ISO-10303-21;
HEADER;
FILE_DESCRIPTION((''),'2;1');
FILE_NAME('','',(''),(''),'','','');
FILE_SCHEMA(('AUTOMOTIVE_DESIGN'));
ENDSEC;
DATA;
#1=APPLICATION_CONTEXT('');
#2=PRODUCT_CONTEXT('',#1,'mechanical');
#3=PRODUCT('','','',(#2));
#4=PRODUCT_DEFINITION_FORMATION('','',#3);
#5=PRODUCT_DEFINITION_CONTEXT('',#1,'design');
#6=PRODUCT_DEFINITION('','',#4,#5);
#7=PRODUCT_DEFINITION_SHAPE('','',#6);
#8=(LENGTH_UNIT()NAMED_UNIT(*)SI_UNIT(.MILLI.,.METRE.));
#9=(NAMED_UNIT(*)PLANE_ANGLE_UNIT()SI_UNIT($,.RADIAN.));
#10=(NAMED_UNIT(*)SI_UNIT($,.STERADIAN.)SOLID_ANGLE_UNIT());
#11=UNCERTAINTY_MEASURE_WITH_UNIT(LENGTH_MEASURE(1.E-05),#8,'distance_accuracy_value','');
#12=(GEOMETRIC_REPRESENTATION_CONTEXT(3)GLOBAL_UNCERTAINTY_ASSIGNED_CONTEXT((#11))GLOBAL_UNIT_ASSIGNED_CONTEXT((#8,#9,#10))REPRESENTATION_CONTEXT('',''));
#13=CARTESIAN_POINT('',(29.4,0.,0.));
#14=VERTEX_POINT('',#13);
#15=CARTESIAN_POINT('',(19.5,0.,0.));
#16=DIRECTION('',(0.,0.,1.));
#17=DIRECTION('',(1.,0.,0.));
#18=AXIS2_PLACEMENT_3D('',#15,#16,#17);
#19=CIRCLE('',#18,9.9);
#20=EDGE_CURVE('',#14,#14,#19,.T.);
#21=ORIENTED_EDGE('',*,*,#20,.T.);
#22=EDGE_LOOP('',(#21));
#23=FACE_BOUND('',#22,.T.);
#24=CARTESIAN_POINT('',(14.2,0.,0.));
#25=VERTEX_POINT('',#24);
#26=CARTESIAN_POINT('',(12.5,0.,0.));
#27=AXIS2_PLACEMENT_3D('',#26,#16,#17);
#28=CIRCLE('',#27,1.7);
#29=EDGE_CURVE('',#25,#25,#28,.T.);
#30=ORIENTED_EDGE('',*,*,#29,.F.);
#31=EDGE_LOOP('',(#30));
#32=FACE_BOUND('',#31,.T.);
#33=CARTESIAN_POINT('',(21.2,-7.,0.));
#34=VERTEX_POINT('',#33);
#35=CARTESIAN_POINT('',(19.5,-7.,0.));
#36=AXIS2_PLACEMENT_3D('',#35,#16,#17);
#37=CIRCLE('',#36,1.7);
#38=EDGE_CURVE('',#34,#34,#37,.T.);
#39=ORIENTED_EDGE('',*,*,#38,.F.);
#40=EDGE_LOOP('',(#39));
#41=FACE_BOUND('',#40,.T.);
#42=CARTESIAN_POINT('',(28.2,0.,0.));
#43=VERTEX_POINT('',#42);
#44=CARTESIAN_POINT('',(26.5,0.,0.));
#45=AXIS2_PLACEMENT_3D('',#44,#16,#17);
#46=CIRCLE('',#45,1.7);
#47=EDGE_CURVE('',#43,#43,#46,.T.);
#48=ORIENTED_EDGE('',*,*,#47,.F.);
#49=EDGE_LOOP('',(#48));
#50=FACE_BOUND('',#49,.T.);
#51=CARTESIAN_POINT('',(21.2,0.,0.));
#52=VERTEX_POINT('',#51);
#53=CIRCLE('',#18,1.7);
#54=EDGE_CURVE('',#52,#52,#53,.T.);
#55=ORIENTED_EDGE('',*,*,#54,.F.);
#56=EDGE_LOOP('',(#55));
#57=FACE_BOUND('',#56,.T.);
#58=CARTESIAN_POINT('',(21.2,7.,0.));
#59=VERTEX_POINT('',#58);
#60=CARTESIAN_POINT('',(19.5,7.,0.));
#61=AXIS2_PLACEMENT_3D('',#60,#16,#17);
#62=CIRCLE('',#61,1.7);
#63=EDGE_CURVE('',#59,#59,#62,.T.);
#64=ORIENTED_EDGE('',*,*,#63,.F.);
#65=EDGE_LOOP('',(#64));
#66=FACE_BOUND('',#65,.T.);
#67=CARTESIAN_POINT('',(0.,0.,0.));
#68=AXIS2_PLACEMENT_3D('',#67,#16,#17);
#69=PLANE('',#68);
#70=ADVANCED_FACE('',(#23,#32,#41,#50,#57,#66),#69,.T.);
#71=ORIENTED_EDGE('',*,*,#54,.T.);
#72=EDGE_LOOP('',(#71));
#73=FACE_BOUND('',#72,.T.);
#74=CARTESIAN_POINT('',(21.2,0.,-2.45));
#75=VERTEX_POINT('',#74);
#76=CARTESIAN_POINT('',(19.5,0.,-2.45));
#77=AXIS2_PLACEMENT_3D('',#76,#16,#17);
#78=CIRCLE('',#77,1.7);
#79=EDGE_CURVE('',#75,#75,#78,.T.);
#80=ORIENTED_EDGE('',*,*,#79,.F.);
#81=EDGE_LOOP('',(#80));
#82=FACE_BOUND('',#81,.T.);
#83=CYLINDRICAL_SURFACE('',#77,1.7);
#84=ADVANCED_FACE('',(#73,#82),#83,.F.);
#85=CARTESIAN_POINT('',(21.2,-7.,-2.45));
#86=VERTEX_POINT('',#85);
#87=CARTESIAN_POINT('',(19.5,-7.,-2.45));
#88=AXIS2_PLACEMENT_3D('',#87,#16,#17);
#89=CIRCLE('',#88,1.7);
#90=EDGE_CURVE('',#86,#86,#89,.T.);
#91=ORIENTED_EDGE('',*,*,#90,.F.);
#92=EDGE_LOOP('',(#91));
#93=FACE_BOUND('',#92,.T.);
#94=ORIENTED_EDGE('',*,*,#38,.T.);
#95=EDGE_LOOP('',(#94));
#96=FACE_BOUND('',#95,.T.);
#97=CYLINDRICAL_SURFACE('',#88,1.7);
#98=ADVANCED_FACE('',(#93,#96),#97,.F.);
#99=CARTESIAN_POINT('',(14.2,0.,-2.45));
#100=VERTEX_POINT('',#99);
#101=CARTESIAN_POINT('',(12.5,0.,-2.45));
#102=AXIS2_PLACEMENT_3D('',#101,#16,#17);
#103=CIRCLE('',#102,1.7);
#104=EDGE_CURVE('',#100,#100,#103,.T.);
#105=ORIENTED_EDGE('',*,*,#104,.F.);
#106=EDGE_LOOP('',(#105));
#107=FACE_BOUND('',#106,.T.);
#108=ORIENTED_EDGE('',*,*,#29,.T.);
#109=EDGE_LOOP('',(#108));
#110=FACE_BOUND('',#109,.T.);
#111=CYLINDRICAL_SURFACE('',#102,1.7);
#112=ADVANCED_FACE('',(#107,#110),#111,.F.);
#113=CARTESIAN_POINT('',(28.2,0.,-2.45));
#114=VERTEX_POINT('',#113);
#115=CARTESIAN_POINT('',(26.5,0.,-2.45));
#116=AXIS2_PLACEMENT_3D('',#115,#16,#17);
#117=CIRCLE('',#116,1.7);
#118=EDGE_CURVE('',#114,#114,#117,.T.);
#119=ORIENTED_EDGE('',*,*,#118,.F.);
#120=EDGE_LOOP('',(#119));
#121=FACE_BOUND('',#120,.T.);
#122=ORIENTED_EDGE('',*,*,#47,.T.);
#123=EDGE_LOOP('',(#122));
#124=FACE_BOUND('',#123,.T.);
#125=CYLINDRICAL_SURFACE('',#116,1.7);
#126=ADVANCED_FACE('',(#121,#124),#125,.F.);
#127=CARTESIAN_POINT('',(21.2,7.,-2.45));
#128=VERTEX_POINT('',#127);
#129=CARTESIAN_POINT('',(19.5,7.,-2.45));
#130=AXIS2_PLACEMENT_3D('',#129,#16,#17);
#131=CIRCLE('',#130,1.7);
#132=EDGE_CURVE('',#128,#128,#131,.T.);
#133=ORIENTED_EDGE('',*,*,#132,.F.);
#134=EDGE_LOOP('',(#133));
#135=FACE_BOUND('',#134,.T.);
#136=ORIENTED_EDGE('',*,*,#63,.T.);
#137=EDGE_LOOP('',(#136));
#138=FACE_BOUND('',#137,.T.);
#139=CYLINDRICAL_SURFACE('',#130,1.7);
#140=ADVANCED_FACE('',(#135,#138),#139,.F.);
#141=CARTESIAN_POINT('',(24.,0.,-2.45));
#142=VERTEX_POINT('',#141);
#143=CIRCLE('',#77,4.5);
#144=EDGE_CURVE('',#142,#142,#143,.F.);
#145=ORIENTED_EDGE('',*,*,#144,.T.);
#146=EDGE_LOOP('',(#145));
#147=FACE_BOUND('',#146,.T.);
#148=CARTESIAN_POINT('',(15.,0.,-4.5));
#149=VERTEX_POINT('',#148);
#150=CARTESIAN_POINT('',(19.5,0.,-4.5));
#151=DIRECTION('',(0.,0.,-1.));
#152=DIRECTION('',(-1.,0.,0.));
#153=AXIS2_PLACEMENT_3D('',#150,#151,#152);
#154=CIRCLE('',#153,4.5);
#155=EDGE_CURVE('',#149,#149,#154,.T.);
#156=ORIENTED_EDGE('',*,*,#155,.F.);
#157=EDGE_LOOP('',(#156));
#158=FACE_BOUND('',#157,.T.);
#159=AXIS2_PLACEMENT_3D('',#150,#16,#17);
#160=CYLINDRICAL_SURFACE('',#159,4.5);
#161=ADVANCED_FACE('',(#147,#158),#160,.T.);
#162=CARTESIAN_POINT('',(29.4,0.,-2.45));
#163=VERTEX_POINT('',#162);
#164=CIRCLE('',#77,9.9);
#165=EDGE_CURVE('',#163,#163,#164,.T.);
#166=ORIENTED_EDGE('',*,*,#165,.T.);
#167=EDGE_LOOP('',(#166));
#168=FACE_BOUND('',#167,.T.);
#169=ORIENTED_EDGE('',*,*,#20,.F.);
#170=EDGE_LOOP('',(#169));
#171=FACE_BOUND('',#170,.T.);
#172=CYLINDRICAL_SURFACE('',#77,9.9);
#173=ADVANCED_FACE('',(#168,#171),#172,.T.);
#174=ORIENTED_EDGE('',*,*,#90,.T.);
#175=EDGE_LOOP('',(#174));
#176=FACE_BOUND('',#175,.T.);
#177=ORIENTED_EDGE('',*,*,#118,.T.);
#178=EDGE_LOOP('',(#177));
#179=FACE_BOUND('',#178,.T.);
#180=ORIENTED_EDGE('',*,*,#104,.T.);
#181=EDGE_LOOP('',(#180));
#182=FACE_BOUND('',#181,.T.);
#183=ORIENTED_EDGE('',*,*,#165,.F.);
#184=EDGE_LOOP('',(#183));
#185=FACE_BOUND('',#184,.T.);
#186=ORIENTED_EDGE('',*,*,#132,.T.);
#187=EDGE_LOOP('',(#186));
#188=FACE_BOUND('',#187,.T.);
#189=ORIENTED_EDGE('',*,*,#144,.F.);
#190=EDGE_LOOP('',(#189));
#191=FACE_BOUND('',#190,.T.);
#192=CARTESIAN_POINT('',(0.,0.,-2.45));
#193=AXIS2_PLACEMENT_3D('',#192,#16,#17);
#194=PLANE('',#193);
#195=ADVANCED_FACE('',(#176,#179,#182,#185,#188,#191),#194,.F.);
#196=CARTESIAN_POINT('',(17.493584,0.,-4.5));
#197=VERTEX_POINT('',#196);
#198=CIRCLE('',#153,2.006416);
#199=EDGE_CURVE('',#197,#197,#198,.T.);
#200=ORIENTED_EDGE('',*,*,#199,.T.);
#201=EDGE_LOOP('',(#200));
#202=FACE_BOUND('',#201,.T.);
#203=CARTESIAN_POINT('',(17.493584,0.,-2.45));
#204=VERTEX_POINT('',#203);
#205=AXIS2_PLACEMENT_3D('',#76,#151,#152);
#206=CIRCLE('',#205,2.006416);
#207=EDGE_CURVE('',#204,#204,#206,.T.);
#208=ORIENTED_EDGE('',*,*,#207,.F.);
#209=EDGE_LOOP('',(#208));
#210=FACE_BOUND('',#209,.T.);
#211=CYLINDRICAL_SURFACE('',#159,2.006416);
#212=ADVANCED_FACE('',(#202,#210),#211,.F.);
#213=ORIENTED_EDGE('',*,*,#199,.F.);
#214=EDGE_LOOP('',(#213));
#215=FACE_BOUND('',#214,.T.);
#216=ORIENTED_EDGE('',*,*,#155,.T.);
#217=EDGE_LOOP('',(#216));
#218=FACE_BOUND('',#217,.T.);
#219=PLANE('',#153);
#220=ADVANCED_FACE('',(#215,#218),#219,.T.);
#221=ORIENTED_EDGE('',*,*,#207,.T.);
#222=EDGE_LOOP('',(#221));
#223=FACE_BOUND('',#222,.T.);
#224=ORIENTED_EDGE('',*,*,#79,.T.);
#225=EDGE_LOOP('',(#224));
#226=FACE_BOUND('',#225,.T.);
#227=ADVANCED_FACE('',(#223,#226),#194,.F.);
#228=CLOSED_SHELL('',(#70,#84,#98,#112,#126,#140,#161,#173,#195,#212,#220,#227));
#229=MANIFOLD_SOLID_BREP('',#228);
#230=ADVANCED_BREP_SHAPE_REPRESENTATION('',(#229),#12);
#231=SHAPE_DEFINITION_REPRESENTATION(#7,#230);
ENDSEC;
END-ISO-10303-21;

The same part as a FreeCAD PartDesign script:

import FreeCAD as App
import Part
import Sketcher
from FreeCAD import Vector
Q = App.Units.Quantity

doc = App.newDocument("Part")
body = doc.addObject("PartDesign::Body", "Body")

sketch1 = body.newObject("Sketcher::SketchObject", "Sketch")
sketch1.AttachmentSupport = (doc.getObject("XY_Plane"), [""])
sketch1.MapMode = "FlatFace"
sketch1.addGeometry(Part.Circle(Vector(19.5, 0, 0), Vector(0, 0, 1), 9.9), False)
sketch1.addGeometry(Part.Circle(Vector(19.5, -7, 0), Vector(0, 0, 1), 1.7), False)
sketch1.addGeometry(Part.Circle(Vector(12.5, 0, 0), Vector(0, 0, 1), 1.7), False)
sketch1.addGeometry(Part.Circle(Vector(19.5, 0, 0), Vector(0, 0, 1), 1.7), False)
sketch1.addGeometry(Part.Circle(Vector(26.5, 0, 0), Vector(0, 0, 1), 1.7), False)
sketch1.addGeometry(Part.Circle(Vector(19.5, 7, 0), Vector(0, 0, 1), 1.7), False)
sketch1.addConstraint(Sketcher.Constraint("Coincident", 3, 3, 0, 3))
sketch1.addConstraint(Sketcher.Constraint("Equal", 1, 2))
sketch1.addConstraint(Sketcher.Constraint("Equal", 2, 3))
sketch1.addConstraint(Sketcher.Constraint("Equal", 3, 4))
sketch1.addConstraint(Sketcher.Constraint("Equal", 4, 5))
sketch1.addConstraint(Sketcher.Constraint("Symmetric", 1, 3, 5, 3, -1))
sketch1.addConstraint(Sketcher.Constraint("PointOnObject", 0, 3, -1))
sketch1.addConstraint(Sketcher.Constraint("PointOnObject", 2, 3, -1))
sketch1.addConstraint(Sketcher.Constraint("PointOnObject", 4, 3, -1))
sketch1.addConstraint(Sketcher.Constraint("Vertical", 0, 3, 1, 3))
sketch1.addConstraint(Sketcher.Constraint("Diameter", 0, Q("19.8 mm")))
sketch1.addConstraint(Sketcher.Constraint("Diameter", 1, Q("3.4 mm")))
sketch1.addConstraint(Sketcher.Constraint("DistanceY", 1, 3, -1, 1, Q("7 mm")))
sketch1.addConstraint(Sketcher.Constraint("DistanceX", 2, 3, 0, 3, Q("7 mm")))
sketch1.addConstraint(Sketcher.Constraint("DistanceX", 0, 3, 4, 3, Q("7 mm")))
sketch1.addConstraint(Sketcher.Constraint("DistanceX", -1, 1, 0, 3, Q("19.5 mm")))
pad1 = body.newObject("PartDesign::Pad", "Pad")
pad1.Profile = sketch1
pad1.Length = 2.45
pad1.Reversed = True

sketch2 = body.newObject("Sketcher::SketchObject", "Sketch001")
sketch2.AttachmentSupport = (doc.getObject("XY_Plane"), [""])
sketch2.MapMode = "FlatFace"
sketch2.AttachmentOffset = App.Placement(Vector(0, 0, -2.45), App.Rotation())
sketch2.addGeometry(Part.Circle(Vector(19.5, 0, 0), Vector(0, 0, 1), 4.5), False)
sketch2.addGeometry(Part.Circle(Vector(19.5, 0, 0), Vector(0, 0, 1), 2), False)
sketch2.addConstraint(Sketcher.Constraint("Coincident", 1, 3, 0, 3))
sketch2.addConstraint(Sketcher.Constraint("PointOnObject", 0, 3, -1))
sketch2.addConstraint(Sketcher.Constraint("Diameter", 0, Q("9 mm")))
sketch2.addConstraint(Sketcher.Constraint("DistanceX", -1, 1, 0, 3, Q("19.5 mm")))
sketch2.addConstraint(Sketcher.Constraint("Diameter", 1, Q("4.012831 mm")))
pad2 = body.newObject("PartDesign::Pad", "Pad001")
pad2.Profile = sketch2
pad2.Length = 2.05
pad2.Reversed = True

doc.recompute()
